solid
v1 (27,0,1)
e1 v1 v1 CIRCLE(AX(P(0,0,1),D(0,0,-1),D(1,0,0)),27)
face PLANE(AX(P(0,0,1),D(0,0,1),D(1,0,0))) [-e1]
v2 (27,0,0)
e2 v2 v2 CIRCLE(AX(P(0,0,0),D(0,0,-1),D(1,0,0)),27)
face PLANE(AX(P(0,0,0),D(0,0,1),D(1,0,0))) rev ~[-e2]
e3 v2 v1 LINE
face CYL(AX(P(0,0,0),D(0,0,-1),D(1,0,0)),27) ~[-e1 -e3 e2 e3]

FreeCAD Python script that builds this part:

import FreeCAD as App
import Part
import Sketcher

doc = App.newDocument("Part")
body = doc.addObject("PartDesign::Body", "Body")

# Sketch on XY plane
sketch1 = body.newObject("Sketcher::SketchObject", "Sketch")
sketch1.AttachmentSupport = (doc.getObject("XY_Plane"), [""])
sketch1.MapMode = "FlatFace"
sketch1.addGeometry(Part.Circle(App.Vector(0, 0, 0), App.Vector(0, 0, 1), 27), False)
sketch1.addConstraint([
    Sketcher.Constraint("Coincident", 0, 3, -1, 1),
    Sketcher.Constraint("Diameter", 0, 54.0),
])
pad1 = body.newObject("PartDesign::Pad", "Pad")
pad1.Profile = sketch1
pad1.Length = 1

doc.recompute()
